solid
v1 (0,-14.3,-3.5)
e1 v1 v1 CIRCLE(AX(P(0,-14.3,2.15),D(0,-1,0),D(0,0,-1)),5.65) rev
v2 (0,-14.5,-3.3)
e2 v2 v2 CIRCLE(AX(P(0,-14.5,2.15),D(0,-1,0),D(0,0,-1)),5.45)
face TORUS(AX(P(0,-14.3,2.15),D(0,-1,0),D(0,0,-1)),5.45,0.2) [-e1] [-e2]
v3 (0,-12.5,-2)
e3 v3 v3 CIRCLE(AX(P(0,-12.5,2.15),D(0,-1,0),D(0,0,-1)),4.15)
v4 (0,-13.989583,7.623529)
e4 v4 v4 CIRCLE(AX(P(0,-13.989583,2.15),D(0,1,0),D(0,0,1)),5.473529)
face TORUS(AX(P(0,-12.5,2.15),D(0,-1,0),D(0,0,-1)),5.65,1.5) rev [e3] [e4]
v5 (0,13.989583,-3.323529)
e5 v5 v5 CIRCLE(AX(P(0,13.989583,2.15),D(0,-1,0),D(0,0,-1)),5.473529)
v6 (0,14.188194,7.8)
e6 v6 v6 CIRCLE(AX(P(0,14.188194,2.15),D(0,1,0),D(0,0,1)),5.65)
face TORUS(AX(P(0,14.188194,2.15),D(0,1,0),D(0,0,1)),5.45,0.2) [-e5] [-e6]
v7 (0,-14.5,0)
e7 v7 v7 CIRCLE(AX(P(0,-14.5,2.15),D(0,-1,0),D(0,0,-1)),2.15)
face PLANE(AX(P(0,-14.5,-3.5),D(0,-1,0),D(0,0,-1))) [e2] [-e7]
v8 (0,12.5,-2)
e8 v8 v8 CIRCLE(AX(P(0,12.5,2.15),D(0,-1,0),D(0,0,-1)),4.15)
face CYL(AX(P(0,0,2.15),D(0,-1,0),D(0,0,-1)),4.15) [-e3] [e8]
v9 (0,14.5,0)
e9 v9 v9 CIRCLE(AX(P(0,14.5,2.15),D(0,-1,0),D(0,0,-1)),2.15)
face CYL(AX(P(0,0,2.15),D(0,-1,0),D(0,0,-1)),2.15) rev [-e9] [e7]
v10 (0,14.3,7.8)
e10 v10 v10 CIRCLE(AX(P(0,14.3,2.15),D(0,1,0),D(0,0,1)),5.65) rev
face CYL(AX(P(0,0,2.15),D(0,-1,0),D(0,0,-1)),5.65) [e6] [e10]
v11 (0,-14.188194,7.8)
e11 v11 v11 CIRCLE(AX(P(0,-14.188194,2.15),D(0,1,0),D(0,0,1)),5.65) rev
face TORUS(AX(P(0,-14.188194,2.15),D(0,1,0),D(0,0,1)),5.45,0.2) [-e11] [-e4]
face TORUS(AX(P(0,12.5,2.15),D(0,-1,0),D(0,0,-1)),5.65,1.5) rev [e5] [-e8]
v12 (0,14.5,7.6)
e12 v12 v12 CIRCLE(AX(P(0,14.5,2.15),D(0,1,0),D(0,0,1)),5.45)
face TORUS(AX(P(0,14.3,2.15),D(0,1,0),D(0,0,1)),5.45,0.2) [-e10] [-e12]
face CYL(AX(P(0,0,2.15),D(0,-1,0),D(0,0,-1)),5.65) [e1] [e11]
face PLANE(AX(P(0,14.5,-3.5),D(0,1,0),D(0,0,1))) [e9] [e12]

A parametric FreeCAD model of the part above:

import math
import FreeCAD as App
import Part
import Sketcher

V = App.Vector


def edges_at(feature, points):
    """Names of the edges that pass closest to the given points."""
    edges = feature.Shape.Edges
    near = lambda p: min(range(len(edges)), key=lambda i: edges[i].distToShape(Part.Vertex(*p))[0])
    return sorted({f"Edge{near(p) + 1}" for p in points})

doc = App.newDocument("Part")
body = doc.addObject("PartDesign::Body", "Body")

sketch1 = body.newObject("Sketcher::SketchObject", "Sketch")
sketch1.AttachmentSupport = (doc.getObject("YZ_Plane"), [""])
sketch1.MapMode = "FlatFace"
sketch1.addGeometry(Part.LineSegment(V(-12.5, -2, 0), V(12.5, -2, 0)), False)
sketch1.addGeometry(Part.ArcOfCircle(Part.Circle(V(12.5, -3.5, 0), V(0, 0, 1), 1.5), math.radians(0), math.radians(90)), False)
sketch1.addGeometry(Part.LineSegment(V(14, -3.5, 0), V(14.5, -3.5, 0)), False)
sketch1.addGeometry(Part.LineSegment(V(14.5, -3.5, 0), V(14.5, 0, 0)), False)
sketch1.addGeometry(Part.LineSegment(V(14.5, 0, 0), V(-14.5, 0, 0)), False)
sketch1.addGeometry(Part.LineSegment(V(-14.5, 0, 0), V(-14.5, -3.5, 0)), False)
sketch1.addGeometry(Part.LineSegment(V(-14.5, -3.5, 0), V(-14, -3.5, 0)), False)
sketch1.addGeometry(Part.ArcOfCircle(Part.Circle(V(-12.5, -3.5, 0), V(0, 0, 1), 1.5), math.radians(90), math.radians(180)), False)
sketch1.addGeometry(Part.LineSegment(V(-14.5, 2.1, 0), V(14.5, 2.1, 0)), True)
sketch1.addConstraint(Sketcher.Constraint("Tangent", 0, 2, 1, 2))
sketch1.addConstraint(Sketcher.Constraint("Coincident", 1, 1, 2, 1))
sketch1.addConstraint(Sketcher.Constraint("Coincident", 2, 2, 3, 1))
sketch1.addConstraint(Sketcher.Constraint("Coincident", 3, 2, 4, 1))
sketch1.addConstraint(Sketcher.Constraint("Coincident", 4, 2, 5, 1))
sketch1.addConstraint(Sketcher.Constraint("Coincident", 5, 2, 6, 1))
sketch1.addConstraint(Sketcher.Constraint("Coincident", 6, 2, 7, 2))
sketch1.addConstraint(Sketcher.Constraint("Tangent", 7, 1, 0, 1))
sketch1.addConstraint(Sketcher.Constraint("Horizontal", 0))
sketch1.addConstraint(Sketcher.Constraint("Horizontal", 2))
sketch1.addConstraint(Sketcher.Constraint("Vertical", 3))
sketch1.addConstraint(Sketcher.Constraint("Horizontal", 4))
sketch1.addConstraint(Sketcher.Constraint("Vertical", 5))
sketch1.addConstraint(Sketcher.Constraint("Horizontal", 6))
sketch1.addConstraint(Sketcher.Constraint("Horizontal", 8))
sketch1.addConstraint(Sketcher.Constraint("Equal", 1, 7))
sketch1.addConstraint(Sketcher.Constraint("Symmetric", 3, 2, 4, 2, -1, 1))
sketch1.addConstraint(Sketcher.Constraint("Symmetric", 1, 1, 6, 2, -2))
sketch1.addConstraint(Sketcher.Constraint("Horizontal", 7, 3, 1, 1))
sketch1.addConstraint(Sketcher.Constraint("Vertical", 5, 2, 8, 1))
sketch1.addConstraint(Sketcher.Constraint("Vertical", 3, 2, 8, 2))
sketch1.addConstraint(Sketcher.Constraint("Radius", 1, 1.5))
sketch1.addConstraint(Sketcher.Constraint("DistanceX", 0, 1, 0, 2, 25.0))
sketch1.addConstraint(Sketcher.Constraint("DistanceX", 4, 2, 4, 1, 29.0))
sketch1.addConstraint(Sketcher.Constraint("DistanceY", 3, 1, 3, 2, 3.5))
sketch1.addConstraint(Sketcher.Constraint("DistanceY", -1, 1, 8, 1, 2.15))
revolution = body.newObject("PartDesign::Revolution", "Revolution")
revolution.Profile = sketch1
revolution.ReferenceAxis = (sketch1, ["Axis0"])
revolution.Angle = 360
doc.recompute()

fillet = body.newObject("PartDesign::Fillet", "Fillet")
fillet.Base = (revolution, edges_at(revolution, [
    (0, -14.5, 7.8),
    (0, -14, 7.8),
    (0, 14, 7.8),
    (0, 14.5, 7.8),
]))
fillet.Radius = 0.2

doc.recompute()
